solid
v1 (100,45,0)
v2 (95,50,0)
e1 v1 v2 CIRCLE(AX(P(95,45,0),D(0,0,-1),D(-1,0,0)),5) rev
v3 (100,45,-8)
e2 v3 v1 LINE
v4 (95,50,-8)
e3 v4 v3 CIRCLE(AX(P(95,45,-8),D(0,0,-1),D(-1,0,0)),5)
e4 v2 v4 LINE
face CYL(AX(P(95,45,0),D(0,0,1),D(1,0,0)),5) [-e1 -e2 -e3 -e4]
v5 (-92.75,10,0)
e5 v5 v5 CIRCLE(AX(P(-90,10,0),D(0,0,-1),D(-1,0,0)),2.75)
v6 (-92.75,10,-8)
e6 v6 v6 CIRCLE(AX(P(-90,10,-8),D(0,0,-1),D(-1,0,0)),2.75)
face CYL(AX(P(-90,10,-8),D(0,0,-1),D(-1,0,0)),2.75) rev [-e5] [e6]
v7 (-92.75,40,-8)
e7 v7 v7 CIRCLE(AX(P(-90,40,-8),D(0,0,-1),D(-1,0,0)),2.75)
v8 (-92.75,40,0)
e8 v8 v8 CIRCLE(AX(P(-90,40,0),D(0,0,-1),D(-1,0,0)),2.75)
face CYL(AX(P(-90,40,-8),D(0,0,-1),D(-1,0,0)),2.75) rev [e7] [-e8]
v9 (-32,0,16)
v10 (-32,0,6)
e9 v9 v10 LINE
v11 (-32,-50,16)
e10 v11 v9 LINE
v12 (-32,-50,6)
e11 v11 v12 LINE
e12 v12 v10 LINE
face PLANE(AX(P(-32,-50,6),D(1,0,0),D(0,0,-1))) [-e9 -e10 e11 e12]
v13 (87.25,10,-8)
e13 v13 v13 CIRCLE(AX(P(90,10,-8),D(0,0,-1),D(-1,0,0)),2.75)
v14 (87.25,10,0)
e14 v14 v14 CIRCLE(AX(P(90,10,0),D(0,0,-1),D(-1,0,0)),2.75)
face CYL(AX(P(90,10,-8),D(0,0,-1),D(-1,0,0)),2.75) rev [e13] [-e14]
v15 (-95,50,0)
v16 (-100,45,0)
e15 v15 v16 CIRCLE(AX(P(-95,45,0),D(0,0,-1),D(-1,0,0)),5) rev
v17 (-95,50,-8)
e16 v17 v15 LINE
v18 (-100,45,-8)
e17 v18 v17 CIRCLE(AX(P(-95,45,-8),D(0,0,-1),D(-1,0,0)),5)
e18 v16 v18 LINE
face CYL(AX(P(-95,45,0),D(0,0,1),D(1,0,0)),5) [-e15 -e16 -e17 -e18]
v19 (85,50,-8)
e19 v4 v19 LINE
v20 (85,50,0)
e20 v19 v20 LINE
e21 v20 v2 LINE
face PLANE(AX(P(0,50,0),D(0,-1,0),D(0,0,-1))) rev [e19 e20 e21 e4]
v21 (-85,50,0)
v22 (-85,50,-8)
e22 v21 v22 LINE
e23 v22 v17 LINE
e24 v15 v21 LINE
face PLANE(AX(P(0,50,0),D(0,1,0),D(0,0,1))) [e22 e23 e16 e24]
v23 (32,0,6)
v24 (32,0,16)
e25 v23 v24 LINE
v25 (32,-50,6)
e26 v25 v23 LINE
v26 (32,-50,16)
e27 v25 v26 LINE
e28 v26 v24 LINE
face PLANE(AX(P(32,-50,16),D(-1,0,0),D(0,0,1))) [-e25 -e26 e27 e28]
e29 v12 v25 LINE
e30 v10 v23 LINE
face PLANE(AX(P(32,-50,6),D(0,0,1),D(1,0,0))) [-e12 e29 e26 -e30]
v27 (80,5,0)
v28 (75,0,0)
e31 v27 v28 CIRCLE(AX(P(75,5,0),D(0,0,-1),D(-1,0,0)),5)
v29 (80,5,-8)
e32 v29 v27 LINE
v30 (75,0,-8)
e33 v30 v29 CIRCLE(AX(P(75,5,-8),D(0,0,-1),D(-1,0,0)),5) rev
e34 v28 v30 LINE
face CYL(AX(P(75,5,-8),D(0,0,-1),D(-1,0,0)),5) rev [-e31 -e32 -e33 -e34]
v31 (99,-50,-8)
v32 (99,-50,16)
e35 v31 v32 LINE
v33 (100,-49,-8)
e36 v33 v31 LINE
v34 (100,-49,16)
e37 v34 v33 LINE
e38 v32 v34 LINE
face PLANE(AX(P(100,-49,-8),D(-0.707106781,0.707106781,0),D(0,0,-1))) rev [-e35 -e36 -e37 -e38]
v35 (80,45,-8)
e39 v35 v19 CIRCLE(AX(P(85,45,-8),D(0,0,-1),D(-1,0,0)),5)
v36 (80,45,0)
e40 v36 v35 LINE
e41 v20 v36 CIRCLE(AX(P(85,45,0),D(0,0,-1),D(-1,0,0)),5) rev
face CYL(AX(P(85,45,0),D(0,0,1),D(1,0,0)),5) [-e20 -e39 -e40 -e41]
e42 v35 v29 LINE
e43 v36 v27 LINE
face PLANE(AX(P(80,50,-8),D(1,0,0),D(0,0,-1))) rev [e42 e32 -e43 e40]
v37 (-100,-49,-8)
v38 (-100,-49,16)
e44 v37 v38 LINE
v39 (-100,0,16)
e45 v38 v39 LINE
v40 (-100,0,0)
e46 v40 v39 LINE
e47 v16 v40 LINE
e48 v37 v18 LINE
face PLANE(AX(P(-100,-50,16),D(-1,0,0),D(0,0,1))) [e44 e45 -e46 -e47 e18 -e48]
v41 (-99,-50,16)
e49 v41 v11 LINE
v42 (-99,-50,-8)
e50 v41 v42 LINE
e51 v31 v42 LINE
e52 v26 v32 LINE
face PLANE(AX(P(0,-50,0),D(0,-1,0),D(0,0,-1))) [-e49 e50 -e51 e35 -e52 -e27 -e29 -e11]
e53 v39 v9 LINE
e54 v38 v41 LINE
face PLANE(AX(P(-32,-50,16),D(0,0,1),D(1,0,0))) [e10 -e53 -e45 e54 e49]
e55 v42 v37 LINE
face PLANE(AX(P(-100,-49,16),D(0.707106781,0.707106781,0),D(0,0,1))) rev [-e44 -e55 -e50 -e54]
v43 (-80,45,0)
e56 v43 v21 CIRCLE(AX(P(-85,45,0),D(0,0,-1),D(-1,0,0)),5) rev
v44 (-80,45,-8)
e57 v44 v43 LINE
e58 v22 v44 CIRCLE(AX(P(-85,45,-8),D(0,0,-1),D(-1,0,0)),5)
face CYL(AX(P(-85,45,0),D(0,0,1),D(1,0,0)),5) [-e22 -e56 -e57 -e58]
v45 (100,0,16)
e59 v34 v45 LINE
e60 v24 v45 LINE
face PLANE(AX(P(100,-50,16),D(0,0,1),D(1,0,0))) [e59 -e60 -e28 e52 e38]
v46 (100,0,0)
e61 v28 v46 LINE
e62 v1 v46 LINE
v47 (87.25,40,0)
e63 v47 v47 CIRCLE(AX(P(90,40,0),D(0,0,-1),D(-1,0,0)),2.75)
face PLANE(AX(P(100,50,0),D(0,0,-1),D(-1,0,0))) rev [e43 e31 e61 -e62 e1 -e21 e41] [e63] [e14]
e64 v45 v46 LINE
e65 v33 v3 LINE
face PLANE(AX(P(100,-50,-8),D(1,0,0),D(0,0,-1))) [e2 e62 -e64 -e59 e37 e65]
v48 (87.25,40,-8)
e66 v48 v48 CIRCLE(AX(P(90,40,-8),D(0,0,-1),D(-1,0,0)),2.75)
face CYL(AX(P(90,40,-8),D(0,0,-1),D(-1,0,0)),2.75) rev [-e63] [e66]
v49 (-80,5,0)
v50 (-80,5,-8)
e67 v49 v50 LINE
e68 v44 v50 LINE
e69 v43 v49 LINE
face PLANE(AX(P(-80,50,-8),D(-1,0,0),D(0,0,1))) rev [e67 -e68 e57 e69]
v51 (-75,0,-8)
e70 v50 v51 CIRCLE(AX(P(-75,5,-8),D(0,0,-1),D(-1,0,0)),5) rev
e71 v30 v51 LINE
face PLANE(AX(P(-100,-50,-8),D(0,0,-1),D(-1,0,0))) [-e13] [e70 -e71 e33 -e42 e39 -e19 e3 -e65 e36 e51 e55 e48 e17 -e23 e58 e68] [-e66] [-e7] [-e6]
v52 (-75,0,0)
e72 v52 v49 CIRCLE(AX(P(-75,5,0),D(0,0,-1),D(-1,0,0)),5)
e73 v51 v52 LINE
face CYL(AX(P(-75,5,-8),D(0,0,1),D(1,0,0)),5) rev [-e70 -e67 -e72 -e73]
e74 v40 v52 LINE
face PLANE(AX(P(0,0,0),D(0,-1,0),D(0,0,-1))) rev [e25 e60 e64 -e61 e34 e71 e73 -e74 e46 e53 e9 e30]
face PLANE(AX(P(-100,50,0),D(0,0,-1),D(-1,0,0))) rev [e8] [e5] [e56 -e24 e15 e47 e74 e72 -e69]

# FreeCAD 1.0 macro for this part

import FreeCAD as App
import Part
import Sketcher


def edges_at(feature, points):
    """Names of the edges that pass closest to the given points."""
    edges = feature.Shape.Edges
    near = lambda p: min(range(len(edges)), key=lambda i: edges[i].distToShape(Part.Vertex(*p))[0])
    return sorted({f"Edge{near(p) + 1}" for p in points})


def add_polygon(sketch, points):
    """Adds a closed chain of lines whose ends are joined by coincident constraints."""
    first, n = sketch.GeometryCount, len(points)
    for a, b in zip(points, points[1:] + points[:1]):
        sketch.addGeometry(Part.LineSegment(App.Vector(*a, 0), App.Vector(*b, 0)), False)
    for i in range(n):
        sketch.addConstraint(Sketcher.Constraint("Coincident", first + i, 2, first + (i + 1) % n, 1))

doc = App.newDocument("Part")
params = doc.addObject("Spreadsheet::Sheet", "Params")
for row, (alias, value) in enumerate([
    ("sketch1_width", "200 mm"),
    ("sketch1_width2", "68 mm"),
    ("sketch1_height", "24 mm"),
    ("sketch1_height2", "10 mm"),
    ("pad1_length", "50 mm"),
    ("sketch2_width", "20 mm"),
    ("sketch2_height", "8 mm"),
    ("pad2_length", "50 mm"),
    ("sketch3_diameter", "5.5 mm"),
    ("hole_diameter", "5.5 mm"),
    ("fillet_radius", "5 mm"),
    ("chamfer_size", "1 mm"),
], start=1):
    params.set(f"A{row}", alias)
    params.set(f"B{row}", "=" + value)
    params.setAlias(f"B{row}", alias)

body = doc.addObject("PartDesign::Body", "Body")

sketch1 = body.newObject("Sketcher::SketchObject", "Sketch")
sketch1.AttachmentSupport = (doc.getObject("XZ_Plane"), [""])
sketch1.MapMode = "FlatFace"
add_polygon(sketch1, [(100, -8), (-100, -8), (-100, 16), (-32, 16), (-32, 6), (32, 6), (32, 16), (100, 16)])
sketch1.addConstraint([
    Sketcher.Constraint("Horizontal", 0),
    Sketcher.Constraint("Vertical", 1),
    Sketcher.Constraint("Horizontal", 2),
    Sketcher.Constraint("Vertical", 3),
    Sketcher.Constraint("Horizontal", 4),
    Sketcher.Constraint("Vertical", 5),
    Sketcher.Constraint("Horizontal", 6),
    Sketcher.Constraint("Vertical", 7),
    Sketcher.Constraint("Symmetric", 2, 2, 5, 2, -2),
    Sketcher.Constraint("Equal", 2, 6),
    Sketcher.Constraint("DistanceX", 0, 2, 0, 1, 200.0),
    Sketcher.Constraint("DistanceX", 2, 1, 2, 2, 68.0),
    Sketcher.Constraint("DistanceY", 1, 1, 1, 2, 24.0),
    Sketcher.Constraint("DistanceY", 3, 2, 3, 1, 10.0),
    Sketcher.Constraint("DistanceY", 0, 2, -1, 1, 8.0),
])
sketch1.setExpression("Constraints[18]", "Params.sketch1_width")
sketch1.setExpression("Constraints[19]", "Params.sketch1_width2")
sketch1.setExpression("Constraints[20]", "Params.sketch1_height")
sketch1.setExpression("Constraints[21]", "Params.sketch1_height2")
pad1 = body.newObject("PartDesign::Pad", "Pad")
pad1.Profile = sketch1
pad1.setExpression("Length", "Params.pad1_length")

sketch2 = body.newObject("Sketcher::SketchObject", "Sketch001")
sketch2.AttachmentSupport = (doc.getObject("XZ_Plane"), [""])
sketch2.MapMode = "FlatFace"
add_polygon(sketch2, [(-100, -8), (-100, 0), (-80, 0), (-80, -8)])
add_polygon(sketch2, [(80, -8), (80, 0), (100, 0), (100, -8)])
sketch2.addConstraint([
    Sketcher.Constraint("Vertical", 0),
    Sketcher.Constraint("Horizontal", 1),
    Sketcher.Constraint("Vertical", 2),
    Sketcher.Constraint("Horizontal", 3),
    Sketcher.Constraint("Vertical", 4),
    Sketcher.Constraint("Horizontal", 5),
    Sketcher.Constraint("Vertical", 6),
    Sketcher.Constraint("Horizontal", 7),
    Sketcher.Constraint("Symmetric", 1, 2, 4, 2, -1, 1),
    Sketcher.Constraint("Symmetric", 0, 2, 5, 2, -2),
    Sketcher.Constraint("Horizontal", 3, 2, 6, 2),
    Sketcher.Constraint("DistanceX", 1, 1, 1, 2, 20.0),
    Sketcher.Constraint("DistanceY", 0, 1, 0, 2, 8.0),
    Sketcher.Constraint("DistanceX", 0, 2, -1, 1, 100.0),
])
sketch2.setExpression("Constraints[19]", "Params.sketch2_width")
sketch2.setExpression("Constraints[20]", "Params.sketch2_height")
pad2 = body.newObject("PartDesign::Pad", "Pad001")
pad2.Profile = sketch2
pad2.setExpression("Length", "Params.pad2_length")
pad2.Reversed = True

sketch3 = body.newObject("Sketcher::SketchObject", "Sketch002")
sketch3.AttachmentSupport = (doc.getObject("XY_Plane"), [""])
sketch3.MapMode = "FlatFace"
sketch3.AttachmentOffset = App.Placement(App.Vector(0, 0, -8), App.Rotation())
sketch3.addGeometry([
    Part.Circle(App.Vector(90, 40, 0), App.Vector(0, 0, 1), 2.8),
    Part.Circle(App.Vector(-90, 10, 0), App.Vector(0, 0, 1), 2.8),
    Part.Circle(App.Vector(90, 10, 0), App.Vector(0, 0, 1), 2.8),
    Part.Circle(App.Vector(-90, 40, 0), App.Vector(0, 0, 1), 2.8),
], False)
sketch3.addConstraint([
    Sketcher.Constraint("Equal", 0, 1),
    Sketcher.Constraint("Equal", 1, 2),
    Sketcher.Constraint("Equal", 2, 3),
    Sketcher.Constraint("Symmetric", 1, 3, 2, 3, -2),
    Sketcher.Constraint("Symmetric", 0, 3, 3, 3, -2),
    Sketcher.Constraint("Vertical", 0, 3, 2, 3),
    Sketcher.Constraint("Diameter", 0, 5.5),
    Sketcher.Constraint("DistanceX", -1, 1, 0, 3, 90.0),
    Sketcher.Constraint("DistanceY", -1, 1, 0, 3, 40.0),
    Sketcher.Constraint("DistanceY", -1, 1, 1, 3, 10.0),
])
sketch3.setExpression("Constraints[6]", "Params.sketch3_diameter")
doc.recompute()
hole = body.newObject("PartDesign::Hole", "Hole")
hole.Profile = sketch3
hole.ThreadType = "None"
hole.setExpression("Diameter", "Params.hole_diameter")
hole.DepthType = "ThroughAll"
hole.Reversed = True
doc.recompute()

fillet = body.newObject("PartDesign::Fillet", "Fillet")
fillet.Base = (hole, edges_at(hole, [
    (-80, 0, -4),
    (-100, 50, -4),
    (-80, 50, -4),
    (80, 0, -4),
    (100, 50, -4),
    (80, 50, -4),
]))
fillet.setExpression("Radius", "Params.fillet_radius")
doc.recompute()

chamfer = body.newObject("PartDesign::Chamfer", "Chamfer")
chamfer.Base = (fillet, edges_at(fillet, [(100, -50, 4), (-100, -50, 4)]))
chamfer.setExpression("Size", "Params.chamfer_size")

doc.recompute()
